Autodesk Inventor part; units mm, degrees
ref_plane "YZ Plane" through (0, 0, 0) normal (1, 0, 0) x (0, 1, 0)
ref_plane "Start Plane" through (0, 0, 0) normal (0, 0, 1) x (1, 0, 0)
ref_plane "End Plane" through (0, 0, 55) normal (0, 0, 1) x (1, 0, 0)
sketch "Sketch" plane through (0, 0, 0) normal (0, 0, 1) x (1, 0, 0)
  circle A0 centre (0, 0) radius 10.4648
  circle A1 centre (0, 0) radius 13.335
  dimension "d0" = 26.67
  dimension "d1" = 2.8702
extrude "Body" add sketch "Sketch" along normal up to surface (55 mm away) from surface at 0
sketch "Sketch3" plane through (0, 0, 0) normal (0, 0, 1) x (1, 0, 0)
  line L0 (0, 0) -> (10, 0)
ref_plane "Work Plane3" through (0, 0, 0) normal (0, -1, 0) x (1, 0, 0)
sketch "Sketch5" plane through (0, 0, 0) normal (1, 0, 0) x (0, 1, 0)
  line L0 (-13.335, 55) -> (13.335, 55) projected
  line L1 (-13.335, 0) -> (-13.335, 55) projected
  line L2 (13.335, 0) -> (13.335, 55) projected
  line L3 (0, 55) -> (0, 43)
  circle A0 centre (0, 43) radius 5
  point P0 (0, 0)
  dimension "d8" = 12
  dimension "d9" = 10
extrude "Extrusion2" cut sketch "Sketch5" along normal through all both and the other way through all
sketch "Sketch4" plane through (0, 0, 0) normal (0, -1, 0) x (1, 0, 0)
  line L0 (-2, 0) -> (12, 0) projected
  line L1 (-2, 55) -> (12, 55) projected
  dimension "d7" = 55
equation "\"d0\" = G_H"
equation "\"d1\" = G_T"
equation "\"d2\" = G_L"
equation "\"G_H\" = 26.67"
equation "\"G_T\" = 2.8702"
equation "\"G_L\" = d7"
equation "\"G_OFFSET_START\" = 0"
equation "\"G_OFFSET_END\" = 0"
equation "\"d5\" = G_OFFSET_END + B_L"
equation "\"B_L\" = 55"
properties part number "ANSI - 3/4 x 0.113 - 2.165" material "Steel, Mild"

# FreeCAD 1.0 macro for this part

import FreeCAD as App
import Part
import Sketcher
Q = App.Units.Quantity

doc = App.newDocument("Part")
body = doc.addObject("PartDesign::Body", "Body")

# Sketch on XY plane
sketch1 = doc.addObject("Sketcher::SketchObject", "Sketch")
body.addObject(sketch1)
sketch1.AttachmentSupport = (doc.XY_Plane, [""])
sketch1.MapMode = "FlatFace"
sketch1.addGeometry([
    Part.Circle(App.Vector(0, 0, 0), App.Vector(0, 0, 1), 13),
    Part.Circle(App.Vector(0, 0, 0), App.Vector(0, 0, 1), 10),
], False)
sketch1.addConstraint([
    Sketcher.Constraint("Coincident", 0, 3, -1, 1),
    Sketcher.Constraint("Coincident", 1, 3, -1, 1),
    Sketcher.Constraint("Diameter", 0, Q("1.05 in")),
    Sketcher.Constraint("Diameter", 1, Q("0.824 in")),
])
pad1 = doc.addObject("PartDesign::Pad", "Pad")
body.addObject(pad1)
pad1.Profile = sketch1
pad1.Length = 55

# Sketch on YZ plane
sketch2 = doc.addObject("Sketcher::SketchObject", "Sketch001")
body.addObject(sketch2)
sketch2.AttachmentSupport = (doc.YZ_Plane, [""])
sketch2.MapMode = "FlatFace"
sketch2.addGeometry(Part.Circle(App.Vector(0, 43, 0), App.Vector(0, 0, 1), 5), False)
sketch2.addConstraint([
    Sketcher.Constraint("PointOnObject", 0, 3, -2),
    Sketcher.Constraint("Diameter", 0, Q("0.3937 in")),
    Sketcher.Constraint("DistanceY", -1, 1, 0, 3, Q("43 mm")),
])
pocket1 = doc.addObject("PartDesign::Pocket", "Pocket")
body.addObject(pocket1)
pocket1.Profile = sketch2
pocket1.Type = "ThroughAll"
pocket1.Midplane = True

doc.recompute()
